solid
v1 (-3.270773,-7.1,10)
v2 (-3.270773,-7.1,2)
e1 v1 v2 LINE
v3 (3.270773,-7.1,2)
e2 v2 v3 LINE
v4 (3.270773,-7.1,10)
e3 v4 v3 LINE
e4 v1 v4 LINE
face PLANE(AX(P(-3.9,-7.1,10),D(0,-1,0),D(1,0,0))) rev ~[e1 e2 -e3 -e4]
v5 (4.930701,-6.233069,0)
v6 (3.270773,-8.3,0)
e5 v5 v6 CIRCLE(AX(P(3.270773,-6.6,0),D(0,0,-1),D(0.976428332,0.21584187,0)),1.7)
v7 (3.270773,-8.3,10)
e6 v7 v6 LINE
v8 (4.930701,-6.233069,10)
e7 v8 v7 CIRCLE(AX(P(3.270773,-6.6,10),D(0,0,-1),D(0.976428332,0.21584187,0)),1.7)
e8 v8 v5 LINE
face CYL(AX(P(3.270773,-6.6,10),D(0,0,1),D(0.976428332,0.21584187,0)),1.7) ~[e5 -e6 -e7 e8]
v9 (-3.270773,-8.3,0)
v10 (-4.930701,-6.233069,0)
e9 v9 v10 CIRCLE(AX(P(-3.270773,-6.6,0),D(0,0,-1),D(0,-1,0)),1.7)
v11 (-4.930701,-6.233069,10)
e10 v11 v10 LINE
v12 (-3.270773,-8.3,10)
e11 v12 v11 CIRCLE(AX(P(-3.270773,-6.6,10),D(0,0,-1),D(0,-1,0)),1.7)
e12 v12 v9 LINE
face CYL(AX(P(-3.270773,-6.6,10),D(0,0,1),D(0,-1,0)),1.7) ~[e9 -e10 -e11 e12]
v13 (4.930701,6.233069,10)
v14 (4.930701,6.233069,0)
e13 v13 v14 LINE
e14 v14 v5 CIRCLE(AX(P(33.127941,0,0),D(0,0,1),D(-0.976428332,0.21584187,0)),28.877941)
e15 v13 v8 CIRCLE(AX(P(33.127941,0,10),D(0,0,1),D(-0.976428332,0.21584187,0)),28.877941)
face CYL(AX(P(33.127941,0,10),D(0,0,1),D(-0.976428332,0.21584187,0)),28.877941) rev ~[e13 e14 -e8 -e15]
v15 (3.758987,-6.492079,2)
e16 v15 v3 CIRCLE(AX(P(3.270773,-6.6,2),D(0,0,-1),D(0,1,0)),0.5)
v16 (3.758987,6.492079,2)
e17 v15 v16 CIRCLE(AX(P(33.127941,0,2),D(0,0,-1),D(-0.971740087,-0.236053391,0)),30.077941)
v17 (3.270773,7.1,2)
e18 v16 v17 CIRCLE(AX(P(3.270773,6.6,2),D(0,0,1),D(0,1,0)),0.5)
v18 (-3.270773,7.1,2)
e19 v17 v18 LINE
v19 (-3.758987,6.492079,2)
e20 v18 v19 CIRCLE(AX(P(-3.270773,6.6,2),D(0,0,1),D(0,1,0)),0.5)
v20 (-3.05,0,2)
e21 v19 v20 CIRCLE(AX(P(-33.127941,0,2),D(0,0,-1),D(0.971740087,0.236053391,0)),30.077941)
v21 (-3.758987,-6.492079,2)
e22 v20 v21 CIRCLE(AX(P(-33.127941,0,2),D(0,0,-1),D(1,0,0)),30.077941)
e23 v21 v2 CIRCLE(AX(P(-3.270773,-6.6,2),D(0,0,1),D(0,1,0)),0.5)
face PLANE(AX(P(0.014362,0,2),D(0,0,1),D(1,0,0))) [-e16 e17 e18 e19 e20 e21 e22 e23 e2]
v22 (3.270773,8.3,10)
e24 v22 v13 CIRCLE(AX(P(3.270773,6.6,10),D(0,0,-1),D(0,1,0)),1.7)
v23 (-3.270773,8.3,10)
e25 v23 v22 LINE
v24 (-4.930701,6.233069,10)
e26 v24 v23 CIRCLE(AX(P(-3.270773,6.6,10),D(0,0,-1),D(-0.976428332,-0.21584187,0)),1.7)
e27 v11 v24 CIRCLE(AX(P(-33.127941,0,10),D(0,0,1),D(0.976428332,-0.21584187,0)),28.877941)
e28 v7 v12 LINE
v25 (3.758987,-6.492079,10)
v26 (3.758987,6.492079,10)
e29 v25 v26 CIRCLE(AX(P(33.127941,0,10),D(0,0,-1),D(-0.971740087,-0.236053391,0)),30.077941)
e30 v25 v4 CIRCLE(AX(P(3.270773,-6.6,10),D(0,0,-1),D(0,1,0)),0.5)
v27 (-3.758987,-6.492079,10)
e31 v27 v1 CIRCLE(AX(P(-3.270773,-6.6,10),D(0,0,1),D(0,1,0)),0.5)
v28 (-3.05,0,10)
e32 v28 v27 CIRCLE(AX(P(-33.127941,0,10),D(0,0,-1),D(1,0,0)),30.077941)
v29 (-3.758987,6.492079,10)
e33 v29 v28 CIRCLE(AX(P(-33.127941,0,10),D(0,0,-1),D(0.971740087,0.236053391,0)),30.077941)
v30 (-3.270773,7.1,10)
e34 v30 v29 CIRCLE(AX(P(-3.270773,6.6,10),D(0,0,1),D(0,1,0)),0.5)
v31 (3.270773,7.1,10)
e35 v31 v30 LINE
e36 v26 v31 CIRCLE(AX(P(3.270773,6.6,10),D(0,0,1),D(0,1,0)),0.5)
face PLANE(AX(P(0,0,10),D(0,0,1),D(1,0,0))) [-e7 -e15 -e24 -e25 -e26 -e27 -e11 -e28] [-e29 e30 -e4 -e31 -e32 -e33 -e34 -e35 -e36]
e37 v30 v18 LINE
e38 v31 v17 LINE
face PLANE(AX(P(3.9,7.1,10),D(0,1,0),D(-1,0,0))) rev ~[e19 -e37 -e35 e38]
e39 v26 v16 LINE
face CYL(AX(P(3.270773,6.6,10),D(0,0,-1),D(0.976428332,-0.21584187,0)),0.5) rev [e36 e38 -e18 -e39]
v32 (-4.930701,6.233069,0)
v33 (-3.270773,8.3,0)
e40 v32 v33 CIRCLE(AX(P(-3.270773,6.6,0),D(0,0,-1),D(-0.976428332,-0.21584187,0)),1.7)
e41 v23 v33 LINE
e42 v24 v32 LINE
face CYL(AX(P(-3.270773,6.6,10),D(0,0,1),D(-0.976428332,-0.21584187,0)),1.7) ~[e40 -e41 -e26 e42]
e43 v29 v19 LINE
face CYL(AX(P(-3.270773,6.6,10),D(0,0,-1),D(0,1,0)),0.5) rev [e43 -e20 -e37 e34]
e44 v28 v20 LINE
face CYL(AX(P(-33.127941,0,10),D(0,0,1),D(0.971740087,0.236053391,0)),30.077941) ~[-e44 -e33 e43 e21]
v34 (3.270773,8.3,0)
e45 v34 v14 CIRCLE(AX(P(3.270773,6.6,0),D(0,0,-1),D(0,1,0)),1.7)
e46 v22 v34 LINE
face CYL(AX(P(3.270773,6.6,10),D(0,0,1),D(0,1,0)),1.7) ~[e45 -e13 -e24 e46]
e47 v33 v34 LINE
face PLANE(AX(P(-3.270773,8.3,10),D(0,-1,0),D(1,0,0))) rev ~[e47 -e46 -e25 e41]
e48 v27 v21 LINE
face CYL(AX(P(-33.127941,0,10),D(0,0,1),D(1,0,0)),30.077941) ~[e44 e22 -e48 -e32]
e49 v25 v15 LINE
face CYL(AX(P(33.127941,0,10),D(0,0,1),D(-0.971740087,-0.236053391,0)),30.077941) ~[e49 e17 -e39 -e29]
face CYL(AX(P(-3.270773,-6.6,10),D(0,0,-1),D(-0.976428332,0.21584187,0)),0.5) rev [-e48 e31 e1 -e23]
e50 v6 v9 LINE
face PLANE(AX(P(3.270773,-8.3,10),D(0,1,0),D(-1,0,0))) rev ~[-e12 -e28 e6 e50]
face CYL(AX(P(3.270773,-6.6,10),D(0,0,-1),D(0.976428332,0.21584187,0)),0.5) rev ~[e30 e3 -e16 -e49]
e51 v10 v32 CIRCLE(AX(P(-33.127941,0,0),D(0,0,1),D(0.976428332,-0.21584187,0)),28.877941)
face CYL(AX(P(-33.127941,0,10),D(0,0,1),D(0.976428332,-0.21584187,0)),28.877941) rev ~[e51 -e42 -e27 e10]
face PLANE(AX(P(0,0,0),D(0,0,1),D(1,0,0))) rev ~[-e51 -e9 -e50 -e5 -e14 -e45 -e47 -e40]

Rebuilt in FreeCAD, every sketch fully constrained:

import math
import FreeCAD as App
import Part
import Sketcher
Q = App.Units.Quantity


def edges_at(feature, points):
    """Names of the edges that pass closest to the given points."""
    edges = feature.Shape.Edges
    near = lambda p: min(range(len(edges)), key=lambda i: edges[i].distToShape(Part.Vertex(*p))[0])
    return sorted({f"Edge{near(p) + 1}" for p in points})

doc = App.newDocument("Part")
body = doc.addObject("PartDesign::Body", "Body")

# Sketch on XY plane
sketch1 = doc.addObject("Sketcher::SketchObject", "Sketch")
body.addObject(sketch1)
sketch1.AttachmentSupport = (doc.XY_Plane, [""])
sketch1.MapMode = "FlatFace"
sketch1.addGeometry([
    Part.LineSegment(App.Vector(-7, 10, 0), App.Vector(-7, -10, 0)),
    Part.LineSegment(App.Vector(-7, -10, 0), App.Vector(7, -10, 0)),
    Part.LineSegment(App.Vector(7, -10, 0), App.Vector(7, 10, 0)),
    Part.LineSegment(App.Vector(7, 10, 0), App.Vector(-7, 10, 0)),
], False)
sketch1.addConstraint([
    Sketcher.Constraint("Coincident", 0, 2, 1, 1),
    Sketcher.Constraint("Coincident", 1, 2, 2, 1),
    Sketcher.Constraint("Coincident", 2, 2, 3, 1),
    Sketcher.Constraint("Coincident", 3, 2, 0, 1),
    Sketcher.Constraint("Vertical", 0),
    Sketcher.Constraint("Horizontal", 1),
    Sketcher.Constraint("Vertical", 2),
    Sketcher.Constraint("Horizontal", 3),
    Sketcher.Constraint("Symmetric", 0, 2, 2, 2, -1, 1),
    Sketcher.Constraint("DistanceX", 1, 1, 1, 2, Q("14 mm")),
    Sketcher.Constraint("DistanceY", 0, 2, 0, 1, Q("20 mm")),
])
pad1 = doc.addObject("PartDesign::Pad", "Pad")
body.addObject(pad1)
pad1.Profile = sketch1
pad1.Length = 10

# Sketch on XY plane
sketch2 = doc.addObject("Sketcher::SketchObject", "Sketch001")
body.addObject(sketch2)
sketch2.AttachmentSupport = (doc.XY_Plane, [""])
sketch2.MapMode = "FlatFace"
sketch2.AttachmentOffset = App.Placement(App.Vector(0, 0, 10), App.Rotation())
sketch2.addGeometry([
    Part.ArcOfCircle(Part.Circle(App.Vector(33.127941, 0, 0), App.Vector(0, 0, 1), 30.077941), math.radians(166.346275), math.radians(193.653725)),  # 0
    Part.LineSegment(App.Vector(3.9, 7.1, 0), App.Vector(-3.9, 7.1, 0)),  # 1
    Part.ArcOfCircle(Part.Circle(App.Vector(-33.127941, 0, 0), App.Vector(0, 0, 1), 30.077941), math.radians(0), math.radians(13.653725)),  # 2
    Part.ArcOfCircle(Part.Circle(App.Vector(-33.127941, 0, 0), App.Vector(0, 0, 1), 30.077941), math.radians(-13.653725), math.radians(0)),  # 3
    Part.LineSegment(App.Vector(-3.9, -7.1, 0), App.Vector(3.9, -7.1, 0)),  # 4
], False)
sketch2.addConstraint([
    Sketcher.Constraint("Coincident", 0, 1, 1, 1),
    Sketcher.Constraint("Coincident", 1, 2, 2, 2),
    Sketcher.Constraint("Tangent", 2, 1, 3, 2),
    Sketcher.Constraint("Coincident", 3, 1, 4, 1),
    Sketcher.Constraint("Coincident", 4, 2, 0, 2),
    Sketcher.Constraint("Horizontal", 1),
    Sketcher.Constraint("Horizontal", 4),
    Sketcher.Constraint("Equal", 0, 2),
    Sketcher.Constraint("Equal", 2, 3),
    Sketcher.Constraint("Symmetric", 0, 3, 2, 3, -1, 1),
    Sketcher.Constraint("Symmetric", 1, 2, 3, 1, -1),
    Sketcher.Constraint("PointOnObject", 2, 1, -1),
    Sketcher.Constraint("DistanceX", 1, 2, 1, 1, Q("7.8 mm")),
    Sketcher.Constraint("DistanceY", -1, 1, 0, 1, Q("7.1 mm")),
    Sketcher.Constraint("DistanceX", 2, 1, -1, 1, Q("3.05 mm")),
])
pocket1 = doc.addObject("PartDesign::Pocket", "Pocket")
body.addObject(pocket1)
pocket1.Profile = sketch2
pocket1.Length = 8
doc.recompute()

fillet = doc.addObject("PartDesign::Fillet", "Fillet")
body.addObject(fillet)
fillet.Base = (pocket1, edges_at(pocket1, [
    (-3.9, 7.1, 6),
    (-3.9, -7.1, 6),
    (3.9, 7.1, 6),
    (3.9, -7.1, 6),
]))
fillet.Radius = 0.5

# Sketch on XY plane
sketch3 = doc.addObject("Sketcher::SketchObject", "Sketch002")
body.addObject(sketch3)
sketch3.AttachmentSupport = (doc.XY_Plane, [""])
sketch3.MapMode = "FlatFace"
sketch3.AttachmentOffset = App.Placement(App.Vector(0, 0, 10), App.Rotation())
sketch3.addGeometry([
    Part.LineSegment(App.Vector(-7, 10, 0), App.Vector(-7, -10, 0)),  # 0
    Part.LineSegment(App.Vector(-7, -10, 0), App.Vector(7, -10, 0)),  # 1
    Part.LineSegment(App.Vector(7, -10, 0), App.Vector(7, 10, 0)),  # 2
    Part.LineSegment(App.Vector(7, 10, 0), App.Vector(-7, 10, 0)),  # 3
    Part.ArcOfCircle(Part.Circle(App.Vector(33.127941, 0, 0), App.Vector(0, 0, 1), 28.877941), math.radians(167.535077), math.radians(192.464923)),  # 4
    Part.ArcOfCircle(Part.Circle(App.Vector(3.270773, -6.6, 0), App.Vector(0, 0, 1), 1.7), math.radians(-90), math.radians(12.464923)),  # 5
    Part.LineSegment(App.Vector(3.270773, -8.3, 0), App.Vector(-3.270773, -8.3, 0)),  # 6
    Part.ArcOfCircle(Part.Circle(App.Vector(-3.270773, -6.6, 0), App.Vector(0, 0, 1), 1.7), math.radians(167.535077), math.radians(270)),  # 7
    Part.ArcOfCircle(Part.Circle(App.Vector(-33.127941, 0, 0), App.Vector(0, 0, 1), 28.877941), math.radians(-12.464923), math.radians(12.464923)),  # 8
    Part.ArcOfCircle(Part.Circle(App.Vector(-3.270773, 6.6, 0), App.Vector(0, 0, 1), 1.7), math.radians(90), math.radians(192.464923)),  # 9
    Part.LineSegment(App.Vector(-3.270773, 8.3, 0), App.Vector(3.270773, 8.3, 0)),  # 10
    Part.ArcOfCircle(Part.Circle(App.Vector(3.270773, 6.6, 0), App.Vector(0, 0, 1), 1.7), math.radians(-12.464923), math.radians(90)),  # 11
], False)
sketch3.addConstraint([
    Sketcher.Constraint("Coincident", 0, 2, 1, 1),
    Sketcher.Constraint("Coincident", 1, 2, 2, 1),
    Sketcher.Constraint("Coincident", 2, 2, 3, 1),
    Sketcher.Constraint("Coincident", 3, 2, 0, 1),
    Sketcher.Constraint("Tangent", 4, 2, 5, 2),
    Sketcher.Constraint("Tangent", 5, 1, 6, 1),
    Sketcher.Constraint("Tangent", 6, 2, 7, 2),
    Sketcher.Constraint("Tangent", 7, 1, 8, 1),
    Sketcher.Constraint("Tangent", 8, 2, 9, 2),
    Sketcher.Constraint("Tangent", 9, 1, 10, 1),
    Sketcher.Constraint("Tangent", 10, 2, 11, 2),
    Sketcher.Constraint("Tangent", 11, 1, 4, 1),
    Sketcher.Constraint("Vertical", 0),
    Sketcher.Constraint("Horizontal", 1),
    Sketcher.Constraint("Vertical", 2),
    Sketcher.Constraint("Horizontal", 3),
    Sketcher.Constraint("Horizontal", 6),
    Sketcher.Constraint("Horizontal", 10),
    Sketcher.Constraint("Equal", 5, 7),
    Sketcher.Constraint("Equal", 4, 8),
    Sketcher.Constraint("Equal", 7, 9),
    Sketcher.Constraint("Equal", 9, 11),
    Sketcher.Constraint("Symmetric", 4, 3, 8, 3, -1, 1),
    Sketcher.Constraint("Symmetric", 0, 2, 2, 2, -1, 1),
    Sketcher.Constraint("Symmetric", 7, 3, 9, 3, -1),
    Sketcher.Constraint("Radius", 5, Q("1.7 mm")),
    Sketcher.Constraint("DistanceX", 1, 1, 1, 2, Q("14 mm")),
    Sketcher.Constraint("DistanceY", 0, 2, 0, 1, Q("20 mm")),
    Sketcher.Constraint("DistanceY", 5, 3, -1, 1, Q("6.6 mm")),
    Sketcher.Constraint("Radius", 4, Q("28.877941 mm")),
    Sketcher.Constraint("DistanceX", -1, 1, 4, 2, Q("4.930701 mm")),
])
pocket2 = doc.addObject("PartDesign::Pocket", "Pocket001")
body.addObject(pocket2)
pocket2.Profile = sketch3
pocket2.Type = "ThroughAll"

doc.recompute()
